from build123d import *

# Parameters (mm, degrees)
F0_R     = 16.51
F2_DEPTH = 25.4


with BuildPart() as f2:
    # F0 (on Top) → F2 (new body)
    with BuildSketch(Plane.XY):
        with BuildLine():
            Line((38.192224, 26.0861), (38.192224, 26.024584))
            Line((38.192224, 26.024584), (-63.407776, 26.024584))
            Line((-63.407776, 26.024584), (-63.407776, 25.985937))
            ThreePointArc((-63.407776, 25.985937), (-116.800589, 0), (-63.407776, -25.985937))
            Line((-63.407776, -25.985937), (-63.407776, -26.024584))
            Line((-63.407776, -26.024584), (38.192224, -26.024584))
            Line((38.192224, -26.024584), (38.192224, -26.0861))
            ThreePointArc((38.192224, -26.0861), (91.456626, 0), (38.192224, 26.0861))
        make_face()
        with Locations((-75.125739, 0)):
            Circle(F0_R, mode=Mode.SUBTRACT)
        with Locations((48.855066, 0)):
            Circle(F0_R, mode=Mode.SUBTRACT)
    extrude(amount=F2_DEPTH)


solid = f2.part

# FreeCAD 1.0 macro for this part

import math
import FreeCAD as App
import Part
import Sketcher
Q = App.Units.Quantity

doc = App.newDocument("Part")
body = doc.addObject("PartDesign::Body", "Body")

# Sketch on XY plane
sketch1 = body.newObject("Sketcher::SketchObject", "Sketch")
sketch1.AttachmentSupport = (doc.getObject("XY_Plane"), [""])
sketch1.MapMode = "FlatFace"
sketch1.addGeometry(Part.LineSegment(App.Vector(38.192, 26.086, 0), App.Vector(38.192, 26.025, 0)), False)
sketch1.addGeometry(Part.LineSegment(App.Vector(38.192, 26.025, 0), App.Vector(-63.408, 26.025, 0)), False)
sketch1.addGeometry(Part.LineSegment(App.Vector(-63.408, 26.025, 0), App.Vector(-63.408, 25.986, 0)), False)
sketch1.addGeometry(Part.ArcOfCircle(Part.Circle(App.Vector(-83.781, 0, 0), App.Vector(0, 0, 1), 33.02), math.radians(52), math.radians(308)), False)
sketch1.addGeometry(Part.LineSegment(App.Vector(-63.408, -25.986, 0), App.Vector(-63.408, -26.025, 0)), False)
sketch1.addGeometry(Part.LineSegment(App.Vector(-63.408, -26.025, 0), App.Vector(38.192, -26.025, 0)), False)
sketch1.addGeometry(Part.LineSegment(App.Vector(38.192, -26.025, 0), App.Vector(38.192, -26.086, 0)), False)
sketch1.addGeometry(Part.ArcOfCircle(Part.Circle(App.Vector(58.437, 0, 0), App.Vector(0, 0, 1), 33.02), math.radians(-128), math.radians(128)), False)
sketch1.addGeometry(Part.Circle(App.Vector(-75.126, 0, 0), App.Vector(0, 0, 1), 16.51), False)
sketch1.addGeometry(Part.Circle(App.Vector(48.855, 0, 0), App.Vector(0, 0, 1), 16.51), False)
sketch1.addConstraint(Sketcher.Constraint("Coincident", 0, 2, 1, 1))
sketch1.addConstraint(Sketcher.Constraint("Coincident", 1, 2, 2, 1))
sketch1.addConstraint(Sketcher.Constraint("Coincident", 2, 2, 3, 1))
sketch1.addConstraint(Sketcher.Constraint("Coincident", 3, 2, 4, 1))
sketch1.addConstraint(Sketcher.Constraint("Coincident", 4, 2, 5, 1))
sketch1.addConstraint(Sketcher.Constraint("Coincident", 5, 2, 6, 1))
sketch1.addConstraint(Sketcher.Constraint("Coincident", 6, 2, 7, 1))
sketch1.addConstraint(Sketcher.Constraint("Coincident", 7, 2, 0, 1))
sketch1.addConstraint(Sketcher.Constraint("Vertical", 0))
sketch1.addConstraint(Sketcher.Constraint("Horizontal", 1))
sketch1.addConstraint(Sketcher.Constraint("Vertical", 2))
sketch1.addConstraint(Sketcher.Constraint("Vertical", 4))
sketch1.addConstraint(Sketcher.Constraint("Horizontal", 5))
sketch1.addConstraint(Sketcher.Constraint("Vertical", 6))
sketch1.addConstraint(Sketcher.Constraint("Equal", 3, 7))
sketch1.addConstraint(Sketcher.Constraint("Equal", 8, 9))
sketch1.addConstraint(Sketcher.Constraint("Symmetric", 2, 2, 3, 2, -1))
sketch1.addConstraint(Sketcher.Constraint("Symmetric", 0, 2, 5, 2, -1))
sketch1.addConstraint(Sketcher.Constraint("PointOnObject", 7, 3, -1))
sketch1.addConstraint(Sketcher.Constraint("PointOnObject", 8, 3, -1))
sketch1.addConstraint(Sketcher.Constraint("PointOnObject", 9, 3, -1))
sketch1.addConstraint(Sketcher.Constraint("Diameter", 8, Q("1.3 in")))
sketch1.addConstraint(Sketcher.Constraint("Radius", 3, Q("1.3 in")))
sketch1.addConstraint(Sketcher.Constraint("DistanceX", 1, 2, 1, 1, Q("4 in")))
sketch1.addConstraint(Sketcher.Constraint("DistanceY", 6, 2, -1, 1, 26.0861))
sketch1.addConstraint(Sketcher.Constraint("DistanceY", 0, 2, 0, 1, 0.061516))
sketch1.addConstraint(Sketcher.Constraint("DistanceY", 2, 2, 2, 1, 0.038647))
sketch1.addConstraint(Sketcher.Constraint("DistanceX", 3, 3, -1, 1, 83.780589))
sketch1.addConstraint(Sketcher.Constraint("DistanceX", 8, 3, -1, 1, 75.125739))
sketch1.addConstraint(Sketcher.Constraint("DistanceX", 9, 3, 7, 3, 9.58156))
pad1 = body.newObject("PartDesign::Pad", "Pad")
pad1.Profile = sketch1
pad1.Length = Q("1 in")

doc.recompute()
